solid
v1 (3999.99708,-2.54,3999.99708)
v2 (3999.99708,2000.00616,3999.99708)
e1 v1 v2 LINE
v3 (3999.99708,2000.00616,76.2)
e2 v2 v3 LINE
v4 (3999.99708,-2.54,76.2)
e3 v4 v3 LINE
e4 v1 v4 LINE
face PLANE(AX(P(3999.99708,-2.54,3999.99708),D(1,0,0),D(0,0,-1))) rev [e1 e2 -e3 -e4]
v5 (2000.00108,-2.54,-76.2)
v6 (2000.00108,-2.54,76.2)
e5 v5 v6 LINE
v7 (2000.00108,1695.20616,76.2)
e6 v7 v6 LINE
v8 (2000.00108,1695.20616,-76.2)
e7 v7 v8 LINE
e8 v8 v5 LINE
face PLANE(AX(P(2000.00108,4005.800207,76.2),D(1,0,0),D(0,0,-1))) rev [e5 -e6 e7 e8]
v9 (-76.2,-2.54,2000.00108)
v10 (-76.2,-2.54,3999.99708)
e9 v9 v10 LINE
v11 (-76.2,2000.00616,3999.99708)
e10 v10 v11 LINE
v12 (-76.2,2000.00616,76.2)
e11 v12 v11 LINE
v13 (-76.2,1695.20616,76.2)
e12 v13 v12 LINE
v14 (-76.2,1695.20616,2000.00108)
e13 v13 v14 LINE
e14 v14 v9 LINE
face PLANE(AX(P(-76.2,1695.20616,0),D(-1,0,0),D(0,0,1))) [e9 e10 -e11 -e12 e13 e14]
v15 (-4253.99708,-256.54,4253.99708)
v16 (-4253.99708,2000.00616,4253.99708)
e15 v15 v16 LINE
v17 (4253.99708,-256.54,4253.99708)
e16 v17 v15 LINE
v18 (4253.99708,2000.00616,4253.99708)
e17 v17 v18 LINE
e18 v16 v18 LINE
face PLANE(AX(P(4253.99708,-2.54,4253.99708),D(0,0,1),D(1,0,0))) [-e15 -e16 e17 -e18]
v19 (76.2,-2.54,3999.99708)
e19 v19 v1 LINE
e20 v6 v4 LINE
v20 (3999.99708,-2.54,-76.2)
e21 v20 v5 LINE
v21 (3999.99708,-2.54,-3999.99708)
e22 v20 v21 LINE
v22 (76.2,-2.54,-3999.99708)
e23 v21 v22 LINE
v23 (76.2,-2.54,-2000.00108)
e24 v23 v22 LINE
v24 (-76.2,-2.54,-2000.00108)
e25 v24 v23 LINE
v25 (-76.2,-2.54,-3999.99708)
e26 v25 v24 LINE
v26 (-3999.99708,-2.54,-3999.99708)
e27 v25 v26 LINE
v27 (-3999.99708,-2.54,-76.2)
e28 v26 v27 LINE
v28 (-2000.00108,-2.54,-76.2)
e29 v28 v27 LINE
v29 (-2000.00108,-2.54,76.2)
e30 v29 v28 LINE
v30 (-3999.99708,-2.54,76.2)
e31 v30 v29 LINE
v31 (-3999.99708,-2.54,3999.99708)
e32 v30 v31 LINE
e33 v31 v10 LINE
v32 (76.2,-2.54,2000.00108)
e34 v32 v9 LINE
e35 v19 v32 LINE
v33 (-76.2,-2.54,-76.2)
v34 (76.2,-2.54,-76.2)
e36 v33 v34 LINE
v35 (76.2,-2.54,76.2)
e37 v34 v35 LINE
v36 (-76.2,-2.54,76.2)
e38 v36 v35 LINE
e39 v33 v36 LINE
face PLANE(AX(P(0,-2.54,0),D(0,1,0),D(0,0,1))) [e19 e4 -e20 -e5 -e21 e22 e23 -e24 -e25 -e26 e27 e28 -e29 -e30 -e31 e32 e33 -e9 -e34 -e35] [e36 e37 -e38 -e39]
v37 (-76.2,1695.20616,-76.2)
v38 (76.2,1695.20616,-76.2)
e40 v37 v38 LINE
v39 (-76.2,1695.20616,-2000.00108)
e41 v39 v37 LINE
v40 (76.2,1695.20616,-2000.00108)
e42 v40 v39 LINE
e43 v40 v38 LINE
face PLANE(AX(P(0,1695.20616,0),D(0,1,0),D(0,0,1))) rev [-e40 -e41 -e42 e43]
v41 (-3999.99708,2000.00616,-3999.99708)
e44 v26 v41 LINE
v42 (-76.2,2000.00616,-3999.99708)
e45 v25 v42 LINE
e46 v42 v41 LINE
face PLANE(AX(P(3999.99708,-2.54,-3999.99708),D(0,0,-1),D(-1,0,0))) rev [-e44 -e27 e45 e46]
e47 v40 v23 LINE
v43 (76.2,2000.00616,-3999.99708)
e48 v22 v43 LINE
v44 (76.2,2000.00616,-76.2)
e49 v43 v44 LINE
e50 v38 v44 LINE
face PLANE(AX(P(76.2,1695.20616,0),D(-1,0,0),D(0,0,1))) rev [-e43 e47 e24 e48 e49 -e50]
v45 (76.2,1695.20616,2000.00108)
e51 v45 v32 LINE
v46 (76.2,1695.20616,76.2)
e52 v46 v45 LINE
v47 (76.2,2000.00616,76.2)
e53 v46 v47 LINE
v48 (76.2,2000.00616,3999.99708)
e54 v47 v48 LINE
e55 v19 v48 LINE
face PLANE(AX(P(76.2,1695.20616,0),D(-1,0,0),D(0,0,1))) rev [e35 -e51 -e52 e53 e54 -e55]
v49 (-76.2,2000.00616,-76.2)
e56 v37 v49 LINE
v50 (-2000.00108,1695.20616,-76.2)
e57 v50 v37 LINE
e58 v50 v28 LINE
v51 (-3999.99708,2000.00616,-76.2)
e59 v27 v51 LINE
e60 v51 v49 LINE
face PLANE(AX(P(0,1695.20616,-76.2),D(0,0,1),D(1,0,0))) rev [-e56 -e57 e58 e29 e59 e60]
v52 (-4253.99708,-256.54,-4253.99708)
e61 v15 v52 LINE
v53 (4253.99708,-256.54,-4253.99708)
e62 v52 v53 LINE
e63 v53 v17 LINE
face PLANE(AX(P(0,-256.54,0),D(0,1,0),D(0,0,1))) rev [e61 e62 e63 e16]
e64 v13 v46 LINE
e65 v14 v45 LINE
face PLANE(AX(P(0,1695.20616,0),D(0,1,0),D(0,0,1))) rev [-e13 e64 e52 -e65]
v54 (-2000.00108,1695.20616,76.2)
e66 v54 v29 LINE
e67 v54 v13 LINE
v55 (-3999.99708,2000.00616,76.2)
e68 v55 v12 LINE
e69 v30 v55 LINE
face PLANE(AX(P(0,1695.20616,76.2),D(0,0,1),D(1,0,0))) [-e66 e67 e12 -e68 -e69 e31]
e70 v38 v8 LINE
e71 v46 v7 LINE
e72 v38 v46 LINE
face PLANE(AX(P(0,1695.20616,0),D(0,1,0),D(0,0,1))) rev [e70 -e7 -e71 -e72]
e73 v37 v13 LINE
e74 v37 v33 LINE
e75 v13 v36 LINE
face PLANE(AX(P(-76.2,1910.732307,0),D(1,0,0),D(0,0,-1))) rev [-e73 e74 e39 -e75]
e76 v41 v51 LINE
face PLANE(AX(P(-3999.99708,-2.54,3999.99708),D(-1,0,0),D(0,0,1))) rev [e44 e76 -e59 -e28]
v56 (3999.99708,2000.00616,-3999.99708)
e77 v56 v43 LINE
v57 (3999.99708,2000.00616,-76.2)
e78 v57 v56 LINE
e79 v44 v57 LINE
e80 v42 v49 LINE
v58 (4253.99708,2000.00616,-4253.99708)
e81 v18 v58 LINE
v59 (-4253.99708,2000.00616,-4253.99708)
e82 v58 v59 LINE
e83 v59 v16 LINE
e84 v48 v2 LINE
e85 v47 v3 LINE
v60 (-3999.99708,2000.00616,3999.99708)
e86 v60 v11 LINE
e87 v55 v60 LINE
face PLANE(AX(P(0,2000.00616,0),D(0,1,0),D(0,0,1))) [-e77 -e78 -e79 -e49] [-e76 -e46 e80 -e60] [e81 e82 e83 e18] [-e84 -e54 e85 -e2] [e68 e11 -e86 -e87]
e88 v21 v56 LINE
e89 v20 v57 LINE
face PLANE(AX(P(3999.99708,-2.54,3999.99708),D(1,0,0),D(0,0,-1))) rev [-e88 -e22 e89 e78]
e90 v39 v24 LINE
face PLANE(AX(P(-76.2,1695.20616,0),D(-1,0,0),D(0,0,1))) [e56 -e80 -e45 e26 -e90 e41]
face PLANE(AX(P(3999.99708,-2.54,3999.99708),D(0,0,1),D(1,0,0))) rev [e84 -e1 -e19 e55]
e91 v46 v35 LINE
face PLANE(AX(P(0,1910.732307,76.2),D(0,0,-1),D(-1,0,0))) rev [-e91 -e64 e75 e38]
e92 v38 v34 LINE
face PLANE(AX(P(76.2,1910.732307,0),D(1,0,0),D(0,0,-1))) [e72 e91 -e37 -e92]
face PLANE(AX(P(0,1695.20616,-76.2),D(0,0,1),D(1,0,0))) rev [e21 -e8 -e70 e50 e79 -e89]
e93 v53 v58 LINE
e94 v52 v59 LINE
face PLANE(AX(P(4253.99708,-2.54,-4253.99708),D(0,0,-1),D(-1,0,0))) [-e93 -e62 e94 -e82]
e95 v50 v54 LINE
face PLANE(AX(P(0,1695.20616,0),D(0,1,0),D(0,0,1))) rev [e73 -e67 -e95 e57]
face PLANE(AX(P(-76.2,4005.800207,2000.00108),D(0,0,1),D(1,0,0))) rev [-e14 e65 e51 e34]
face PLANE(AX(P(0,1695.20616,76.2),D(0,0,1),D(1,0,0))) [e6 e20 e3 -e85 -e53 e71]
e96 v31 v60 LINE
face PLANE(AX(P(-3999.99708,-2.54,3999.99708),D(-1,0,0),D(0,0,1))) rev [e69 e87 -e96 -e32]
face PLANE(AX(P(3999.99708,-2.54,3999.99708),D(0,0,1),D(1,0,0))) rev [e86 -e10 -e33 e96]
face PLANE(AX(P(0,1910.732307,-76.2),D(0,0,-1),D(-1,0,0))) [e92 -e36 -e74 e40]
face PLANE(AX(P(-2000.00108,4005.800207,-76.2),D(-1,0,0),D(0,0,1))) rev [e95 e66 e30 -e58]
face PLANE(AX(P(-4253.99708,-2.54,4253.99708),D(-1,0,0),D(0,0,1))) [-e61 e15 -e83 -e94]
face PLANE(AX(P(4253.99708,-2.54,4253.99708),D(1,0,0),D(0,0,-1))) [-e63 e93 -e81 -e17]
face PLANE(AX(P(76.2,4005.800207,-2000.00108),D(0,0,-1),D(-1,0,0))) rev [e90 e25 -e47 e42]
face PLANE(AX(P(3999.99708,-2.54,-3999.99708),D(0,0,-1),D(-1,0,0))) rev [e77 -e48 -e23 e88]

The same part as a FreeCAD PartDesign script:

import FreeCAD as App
import Part
import Sketcher

V = App.Vector
Q = App.Units.Quantity


def add_polygon(sketch, points):
    """Adds a closed chain of lines whose ends are joined by coincident constraints."""
    first, n = sketch.GeometryCount, len(points)
    for a, b in zip(points, points[1:] + points[:1]):
        sketch.addGeometry(Part.LineSegment(App.Vector(*a, 0), App.Vector(*b, 0)), False)
    for i in range(n):
        sketch.addConstraint(Sketcher.Constraint("Coincident", first + i, 2, first + (i + 1) % n, 1))

doc = App.newDocument("Part")
body = doc.addObject("PartDesign::Body", "Body")

# Sketch on XZ plane
sketch1 = body.newObject("Sketcher::SketchObject", "Sketch")
sketch1.AttachmentSupport = (doc.getObject("XZ_Plane"), [""])
sketch1.MapMode = "FlatFace"
add_polygon(sketch1, [(-4253.99708, -4253.99708), (-4253.99708, 4253.99708), (4253.99708, 4253.99708), (4253.99708, -4253.99708)])  # lines 0-3
add_polygon(sketch1, [(3999.99708, 3999.99708), (-3999.99708, 3999.99708), (-3999.99708, -3999.99708), (3999.99708, -3999.99708)])  # lines 4-7
sketch1.addConstraint([
    Sketcher.Constraint("Vertical", 0),
    Sketcher.Constraint("Horizontal", 1),
    Sketcher.Constraint("Vertical", 2),
    Sketcher.Constraint("Horizontal", 3),
    Sketcher.Constraint("Horizontal", 4),
    Sketcher.Constraint("Vertical", 5),
    Sketcher.Constraint("Horizontal", 6),
    Sketcher.Constraint("Vertical", 7),
    Sketcher.Constraint("Symmetric", 0, 2, 2, 2, -1, 1),
    Sketcher.Constraint("Symmetric", 4, 2, 6, 2, -1, 1),
    Sketcher.Constraint("Equal", 3, 0),
    Sketcher.Constraint("Equal", 6, 5),
    Sketcher.Constraint("DistanceX", 0, 2, 4, 2, Q("10 in")),
    Sketcher.Constraint("DistanceX", 1, 1, 1, 2, Q("334.9604 in")),
])
pad1 = body.newObject("PartDesign::Pad", "Pad")
pad1.Profile = sketch1
pad1.Type = "TwoLengths"
pad1.Length = Q("78.7404 in")
pad1.Length2 = Q("0.1 in")
pad1.Reversed = True

# Sketch on XZ plane
sketch2 = body.newObject("Sketcher::SketchObject", "Sketch001")
sketch2.AttachmentSupport = (doc.getObject("XZ_Plane"), [""])
sketch2.MapMode = "FlatFace"
sketch2.AttachmentOffset = App.Placement(V(0, 0, 0.1 * 25.4), App.Rotation())
add_polygon(sketch2, [(-4253.99708, 4253.99708), (-4253.99708, -4253.99708), (4253.99708, -4253.99708), (4253.99708, 4253.99708)])  # lines 0-3
sketch2.addConstraint([
    Sketcher.Constraint("Vertical", 0),
    Sketcher.Constraint("Horizontal", 1),
    Sketcher.Constraint("Vertical", 2),
    Sketcher.Constraint("Horizontal", 3),
    Sketcher.Constraint("Symmetric", 0, 2, 2, 2, -1, 1),
    Sketcher.Constraint("Equal", 3, 0),
    Sketcher.Constraint("DistanceX", 1, 1, 1, 2, Q("334.9604 in")),
])
pad2 = body.newObject("PartDesign::Pad", "Pad001")
pad2.Profile = sketch2
pad2.Length = Q("10 in")
body2 = doc.addObject("PartDesign::Body", "Body001")

# Sketch on XZ plane
sketch3 = body2.newObject("Sketcher::SketchObject", "Sketch002")
sketch3.AttachmentSupport = (doc.getObject("XZ_Plane001"), [""])
sketch3.MapMode = "FlatFace"
sketch3.AttachmentOffset = App.Placement(V(0, 0, -78.7404 * 25.4), App.Rotation())
add_polygon(sketch3, [(-76, -4000), (-76, -76), (-4000, -76), (-4000, 76), (-76, 76), (-76, 4000), (76, 4000), (76, 76), (4000, 76), (4000, -76), (76, -76), (76, -4000)])  # lines 0-11
sketch3.addConstraint([
    Sketcher.Constraint("Vertical", 0),
    Sketcher.Constraint("Horizontal", 1),
    Sketcher.Constraint("Vertical", 2),
    Sketcher.Constraint("Horizontal", 3),
    Sketcher.Constraint("Vertical", 4),
    Sketcher.Constraint("Horizontal", 5),
    Sketcher.Constraint("Vertical", 6),
    Sketcher.Constraint("Horizontal", 7),
    Sketcher.Constraint("Vertical", 8),
    Sketcher.Constraint("Horizontal", 9),
    Sketcher.Constraint("Vertical", 10),
    Sketcher.Constraint("Horizontal", 11),
    Sketcher.Constraint("Symmetric", 0, 2, 6, 2, -1, 1),
    Sketcher.Constraint("Symmetric", 2, 2, 8, 2, -1, 1),
    Sketcher.Constraint("Symmetric", 4, 2, 10, 2, -1, 1),
    Sketcher.Constraint("Symmetric", 3, 2, 6, 2, -2),
    Sketcher.Constraint("Equal", 9, 0),
    Sketcher.Constraint("Equal", 11, 2),
    Sketcher.Constraint("DistanceX", 5, 1, 5, 2, Q("6 in")),
    Sketcher.Constraint("DistanceX", 1, 2, 1, 1, Q("154.4802 in")),
])
pad3 = body2.newObject("PartDesign::Pad", "Pad002")
pad3.Profile = sketch3
pad3.Length = Q("12 in")
doc.recompute()

boolean = body2.newObject("PartDesign::Boolean", "Boolean")
boolean.Type = "Fuse"
boolean.addObjects([body])

# Sketch on XZ plane
sketch4 = body2.newObject("Sketcher::SketchObject", "Sketch003")
sketch4.AttachmentSupport = (doc.getObject("XZ_Plane001"), [""])
sketch4.MapMode = "FlatFace"
sketch4.AttachmentOffset = App.Placement(V(0, 0, 0.1 * 25.4), App.Rotation())
add_polygon(sketch4, [(-76, -76), (-76, 76), (76, 76), (76, -76)])  # lines 0-3
sketch4.addConstraint([
    Sketcher.Constraint("Vertical", 0),
    Sketcher.Constraint("Horizontal", 1),
    Sketcher.Constraint("Vertical", 2),
    Sketcher.Constraint("Horizontal", 3),
    Sketcher.Constraint("Symmetric", 0, 2, 2, 2, -1, 1),
    Sketcher.Constraint("Equal", 3, 0),
    Sketcher.Constraint("DistanceX", 1, 1, 1, 2, Q("6 in")),
])
pad4 = body2.newObject("PartDesign::Pad", "Pad003")
pad4.Profile = sketch4
pad4.Length = Q("66.8404 in")
pad4.Reversed = True

# Sketch on XZ plane
sketch5 = body2.newObject("Sketcher::SketchObject", "Sketch004")
sketch5.AttachmentSupport = (doc.getObject("XZ_Plane001"), [""])
sketch5.MapMode = "FlatFace"
sketch5.AttachmentOffset = App.Placement(V(0, 0, 0.1 * 25.4), App.Rotation())
add_polygon(sketch5, [(-4000, -76), (-4000, 76), (-2000, 76), (-2000, -76)])  # lines 0-3
add_polygon(sketch5, [(-76, -4000), (-76, -2000), (76, -2000), (76, -4000)])  # lines 4-7
add_polygon(sketch5, [(2000, -76), (2000, 76), (4000, 76), (4000, -76)])  # lines 8-11
add_polygon(sketch5, [(-76, 2000), (-76, 4000), (76, 4000), (76, 2000)])  # lines 12-15
sketch5.addConstraint([
    Sketcher.Constraint("Vertical", 0),
    Sketcher.Constraint("Horizontal", 1),
    Sketcher.Constraint("Vertical", 2),
    Sketcher.Constraint("Horizontal", 3),
    Sketcher.Constraint("Vertical", 4),
    Sketcher.Constraint("Horizontal", 5),
    Sketcher.Constraint("Vertical", 6),
    Sketcher.Constraint("Horizontal", 7),
    Sketcher.Constraint("Vertical", 8),
    Sketcher.Constraint("Horizontal", 9),
    Sketcher.Constraint("Vertical", 10),
    Sketcher.Constraint("Horizontal", 11),
    Sketcher.Constraint("Vertical", 12),
    Sketcher.Constraint("Horizontal", 13),
    Sketcher.Constraint("Vertical", 14),
    Sketcher.Constraint("Horizontal", 15),
    Sketcher.Constraint("Symmetric", 2, 2, 8, 2, -1, 1),
    Sketcher.Constraint("Symmetric", 0, 2, 10, 2, -1, 1),
    Sketcher.Constraint("Symmetric", 6, 2, 12, 2, -1, 1),
    Sketcher.Constraint("Symmetric", 4, 2, 14, 2, -1, 1),
    Sketcher.Constraint("Horizontal", 1, 2, 8, 2),
    Sketcher.Constraint("Vertical", 7, 2, 12, 2),
    Sketcher.Constraint("Equal", 15, 0),
    Sketcher.Constraint("Equal", 11, 4),
    Sketcher.Constraint("DistanceX", 5, 1, 5, 2, Q("6 in")),
    Sketcher.Constraint("DistanceX", 1, 1, 1, 2, Q("78.74 in")),
    Sketcher.Constraint("DistanceX", 0, 2, -1, 1, Q("157.4802 in")),
    Sketcher.Constraint("DistanceY", 4, 2, -1, 1, Q("78.7402 in")),
])
pad5 = body2.newObject("PartDesign::Pad", "Pad004")
pad5.Profile = sketch5
pad5.Length = Q("66.8404 in")
pad5.Reversed = True

doc.recompute()
